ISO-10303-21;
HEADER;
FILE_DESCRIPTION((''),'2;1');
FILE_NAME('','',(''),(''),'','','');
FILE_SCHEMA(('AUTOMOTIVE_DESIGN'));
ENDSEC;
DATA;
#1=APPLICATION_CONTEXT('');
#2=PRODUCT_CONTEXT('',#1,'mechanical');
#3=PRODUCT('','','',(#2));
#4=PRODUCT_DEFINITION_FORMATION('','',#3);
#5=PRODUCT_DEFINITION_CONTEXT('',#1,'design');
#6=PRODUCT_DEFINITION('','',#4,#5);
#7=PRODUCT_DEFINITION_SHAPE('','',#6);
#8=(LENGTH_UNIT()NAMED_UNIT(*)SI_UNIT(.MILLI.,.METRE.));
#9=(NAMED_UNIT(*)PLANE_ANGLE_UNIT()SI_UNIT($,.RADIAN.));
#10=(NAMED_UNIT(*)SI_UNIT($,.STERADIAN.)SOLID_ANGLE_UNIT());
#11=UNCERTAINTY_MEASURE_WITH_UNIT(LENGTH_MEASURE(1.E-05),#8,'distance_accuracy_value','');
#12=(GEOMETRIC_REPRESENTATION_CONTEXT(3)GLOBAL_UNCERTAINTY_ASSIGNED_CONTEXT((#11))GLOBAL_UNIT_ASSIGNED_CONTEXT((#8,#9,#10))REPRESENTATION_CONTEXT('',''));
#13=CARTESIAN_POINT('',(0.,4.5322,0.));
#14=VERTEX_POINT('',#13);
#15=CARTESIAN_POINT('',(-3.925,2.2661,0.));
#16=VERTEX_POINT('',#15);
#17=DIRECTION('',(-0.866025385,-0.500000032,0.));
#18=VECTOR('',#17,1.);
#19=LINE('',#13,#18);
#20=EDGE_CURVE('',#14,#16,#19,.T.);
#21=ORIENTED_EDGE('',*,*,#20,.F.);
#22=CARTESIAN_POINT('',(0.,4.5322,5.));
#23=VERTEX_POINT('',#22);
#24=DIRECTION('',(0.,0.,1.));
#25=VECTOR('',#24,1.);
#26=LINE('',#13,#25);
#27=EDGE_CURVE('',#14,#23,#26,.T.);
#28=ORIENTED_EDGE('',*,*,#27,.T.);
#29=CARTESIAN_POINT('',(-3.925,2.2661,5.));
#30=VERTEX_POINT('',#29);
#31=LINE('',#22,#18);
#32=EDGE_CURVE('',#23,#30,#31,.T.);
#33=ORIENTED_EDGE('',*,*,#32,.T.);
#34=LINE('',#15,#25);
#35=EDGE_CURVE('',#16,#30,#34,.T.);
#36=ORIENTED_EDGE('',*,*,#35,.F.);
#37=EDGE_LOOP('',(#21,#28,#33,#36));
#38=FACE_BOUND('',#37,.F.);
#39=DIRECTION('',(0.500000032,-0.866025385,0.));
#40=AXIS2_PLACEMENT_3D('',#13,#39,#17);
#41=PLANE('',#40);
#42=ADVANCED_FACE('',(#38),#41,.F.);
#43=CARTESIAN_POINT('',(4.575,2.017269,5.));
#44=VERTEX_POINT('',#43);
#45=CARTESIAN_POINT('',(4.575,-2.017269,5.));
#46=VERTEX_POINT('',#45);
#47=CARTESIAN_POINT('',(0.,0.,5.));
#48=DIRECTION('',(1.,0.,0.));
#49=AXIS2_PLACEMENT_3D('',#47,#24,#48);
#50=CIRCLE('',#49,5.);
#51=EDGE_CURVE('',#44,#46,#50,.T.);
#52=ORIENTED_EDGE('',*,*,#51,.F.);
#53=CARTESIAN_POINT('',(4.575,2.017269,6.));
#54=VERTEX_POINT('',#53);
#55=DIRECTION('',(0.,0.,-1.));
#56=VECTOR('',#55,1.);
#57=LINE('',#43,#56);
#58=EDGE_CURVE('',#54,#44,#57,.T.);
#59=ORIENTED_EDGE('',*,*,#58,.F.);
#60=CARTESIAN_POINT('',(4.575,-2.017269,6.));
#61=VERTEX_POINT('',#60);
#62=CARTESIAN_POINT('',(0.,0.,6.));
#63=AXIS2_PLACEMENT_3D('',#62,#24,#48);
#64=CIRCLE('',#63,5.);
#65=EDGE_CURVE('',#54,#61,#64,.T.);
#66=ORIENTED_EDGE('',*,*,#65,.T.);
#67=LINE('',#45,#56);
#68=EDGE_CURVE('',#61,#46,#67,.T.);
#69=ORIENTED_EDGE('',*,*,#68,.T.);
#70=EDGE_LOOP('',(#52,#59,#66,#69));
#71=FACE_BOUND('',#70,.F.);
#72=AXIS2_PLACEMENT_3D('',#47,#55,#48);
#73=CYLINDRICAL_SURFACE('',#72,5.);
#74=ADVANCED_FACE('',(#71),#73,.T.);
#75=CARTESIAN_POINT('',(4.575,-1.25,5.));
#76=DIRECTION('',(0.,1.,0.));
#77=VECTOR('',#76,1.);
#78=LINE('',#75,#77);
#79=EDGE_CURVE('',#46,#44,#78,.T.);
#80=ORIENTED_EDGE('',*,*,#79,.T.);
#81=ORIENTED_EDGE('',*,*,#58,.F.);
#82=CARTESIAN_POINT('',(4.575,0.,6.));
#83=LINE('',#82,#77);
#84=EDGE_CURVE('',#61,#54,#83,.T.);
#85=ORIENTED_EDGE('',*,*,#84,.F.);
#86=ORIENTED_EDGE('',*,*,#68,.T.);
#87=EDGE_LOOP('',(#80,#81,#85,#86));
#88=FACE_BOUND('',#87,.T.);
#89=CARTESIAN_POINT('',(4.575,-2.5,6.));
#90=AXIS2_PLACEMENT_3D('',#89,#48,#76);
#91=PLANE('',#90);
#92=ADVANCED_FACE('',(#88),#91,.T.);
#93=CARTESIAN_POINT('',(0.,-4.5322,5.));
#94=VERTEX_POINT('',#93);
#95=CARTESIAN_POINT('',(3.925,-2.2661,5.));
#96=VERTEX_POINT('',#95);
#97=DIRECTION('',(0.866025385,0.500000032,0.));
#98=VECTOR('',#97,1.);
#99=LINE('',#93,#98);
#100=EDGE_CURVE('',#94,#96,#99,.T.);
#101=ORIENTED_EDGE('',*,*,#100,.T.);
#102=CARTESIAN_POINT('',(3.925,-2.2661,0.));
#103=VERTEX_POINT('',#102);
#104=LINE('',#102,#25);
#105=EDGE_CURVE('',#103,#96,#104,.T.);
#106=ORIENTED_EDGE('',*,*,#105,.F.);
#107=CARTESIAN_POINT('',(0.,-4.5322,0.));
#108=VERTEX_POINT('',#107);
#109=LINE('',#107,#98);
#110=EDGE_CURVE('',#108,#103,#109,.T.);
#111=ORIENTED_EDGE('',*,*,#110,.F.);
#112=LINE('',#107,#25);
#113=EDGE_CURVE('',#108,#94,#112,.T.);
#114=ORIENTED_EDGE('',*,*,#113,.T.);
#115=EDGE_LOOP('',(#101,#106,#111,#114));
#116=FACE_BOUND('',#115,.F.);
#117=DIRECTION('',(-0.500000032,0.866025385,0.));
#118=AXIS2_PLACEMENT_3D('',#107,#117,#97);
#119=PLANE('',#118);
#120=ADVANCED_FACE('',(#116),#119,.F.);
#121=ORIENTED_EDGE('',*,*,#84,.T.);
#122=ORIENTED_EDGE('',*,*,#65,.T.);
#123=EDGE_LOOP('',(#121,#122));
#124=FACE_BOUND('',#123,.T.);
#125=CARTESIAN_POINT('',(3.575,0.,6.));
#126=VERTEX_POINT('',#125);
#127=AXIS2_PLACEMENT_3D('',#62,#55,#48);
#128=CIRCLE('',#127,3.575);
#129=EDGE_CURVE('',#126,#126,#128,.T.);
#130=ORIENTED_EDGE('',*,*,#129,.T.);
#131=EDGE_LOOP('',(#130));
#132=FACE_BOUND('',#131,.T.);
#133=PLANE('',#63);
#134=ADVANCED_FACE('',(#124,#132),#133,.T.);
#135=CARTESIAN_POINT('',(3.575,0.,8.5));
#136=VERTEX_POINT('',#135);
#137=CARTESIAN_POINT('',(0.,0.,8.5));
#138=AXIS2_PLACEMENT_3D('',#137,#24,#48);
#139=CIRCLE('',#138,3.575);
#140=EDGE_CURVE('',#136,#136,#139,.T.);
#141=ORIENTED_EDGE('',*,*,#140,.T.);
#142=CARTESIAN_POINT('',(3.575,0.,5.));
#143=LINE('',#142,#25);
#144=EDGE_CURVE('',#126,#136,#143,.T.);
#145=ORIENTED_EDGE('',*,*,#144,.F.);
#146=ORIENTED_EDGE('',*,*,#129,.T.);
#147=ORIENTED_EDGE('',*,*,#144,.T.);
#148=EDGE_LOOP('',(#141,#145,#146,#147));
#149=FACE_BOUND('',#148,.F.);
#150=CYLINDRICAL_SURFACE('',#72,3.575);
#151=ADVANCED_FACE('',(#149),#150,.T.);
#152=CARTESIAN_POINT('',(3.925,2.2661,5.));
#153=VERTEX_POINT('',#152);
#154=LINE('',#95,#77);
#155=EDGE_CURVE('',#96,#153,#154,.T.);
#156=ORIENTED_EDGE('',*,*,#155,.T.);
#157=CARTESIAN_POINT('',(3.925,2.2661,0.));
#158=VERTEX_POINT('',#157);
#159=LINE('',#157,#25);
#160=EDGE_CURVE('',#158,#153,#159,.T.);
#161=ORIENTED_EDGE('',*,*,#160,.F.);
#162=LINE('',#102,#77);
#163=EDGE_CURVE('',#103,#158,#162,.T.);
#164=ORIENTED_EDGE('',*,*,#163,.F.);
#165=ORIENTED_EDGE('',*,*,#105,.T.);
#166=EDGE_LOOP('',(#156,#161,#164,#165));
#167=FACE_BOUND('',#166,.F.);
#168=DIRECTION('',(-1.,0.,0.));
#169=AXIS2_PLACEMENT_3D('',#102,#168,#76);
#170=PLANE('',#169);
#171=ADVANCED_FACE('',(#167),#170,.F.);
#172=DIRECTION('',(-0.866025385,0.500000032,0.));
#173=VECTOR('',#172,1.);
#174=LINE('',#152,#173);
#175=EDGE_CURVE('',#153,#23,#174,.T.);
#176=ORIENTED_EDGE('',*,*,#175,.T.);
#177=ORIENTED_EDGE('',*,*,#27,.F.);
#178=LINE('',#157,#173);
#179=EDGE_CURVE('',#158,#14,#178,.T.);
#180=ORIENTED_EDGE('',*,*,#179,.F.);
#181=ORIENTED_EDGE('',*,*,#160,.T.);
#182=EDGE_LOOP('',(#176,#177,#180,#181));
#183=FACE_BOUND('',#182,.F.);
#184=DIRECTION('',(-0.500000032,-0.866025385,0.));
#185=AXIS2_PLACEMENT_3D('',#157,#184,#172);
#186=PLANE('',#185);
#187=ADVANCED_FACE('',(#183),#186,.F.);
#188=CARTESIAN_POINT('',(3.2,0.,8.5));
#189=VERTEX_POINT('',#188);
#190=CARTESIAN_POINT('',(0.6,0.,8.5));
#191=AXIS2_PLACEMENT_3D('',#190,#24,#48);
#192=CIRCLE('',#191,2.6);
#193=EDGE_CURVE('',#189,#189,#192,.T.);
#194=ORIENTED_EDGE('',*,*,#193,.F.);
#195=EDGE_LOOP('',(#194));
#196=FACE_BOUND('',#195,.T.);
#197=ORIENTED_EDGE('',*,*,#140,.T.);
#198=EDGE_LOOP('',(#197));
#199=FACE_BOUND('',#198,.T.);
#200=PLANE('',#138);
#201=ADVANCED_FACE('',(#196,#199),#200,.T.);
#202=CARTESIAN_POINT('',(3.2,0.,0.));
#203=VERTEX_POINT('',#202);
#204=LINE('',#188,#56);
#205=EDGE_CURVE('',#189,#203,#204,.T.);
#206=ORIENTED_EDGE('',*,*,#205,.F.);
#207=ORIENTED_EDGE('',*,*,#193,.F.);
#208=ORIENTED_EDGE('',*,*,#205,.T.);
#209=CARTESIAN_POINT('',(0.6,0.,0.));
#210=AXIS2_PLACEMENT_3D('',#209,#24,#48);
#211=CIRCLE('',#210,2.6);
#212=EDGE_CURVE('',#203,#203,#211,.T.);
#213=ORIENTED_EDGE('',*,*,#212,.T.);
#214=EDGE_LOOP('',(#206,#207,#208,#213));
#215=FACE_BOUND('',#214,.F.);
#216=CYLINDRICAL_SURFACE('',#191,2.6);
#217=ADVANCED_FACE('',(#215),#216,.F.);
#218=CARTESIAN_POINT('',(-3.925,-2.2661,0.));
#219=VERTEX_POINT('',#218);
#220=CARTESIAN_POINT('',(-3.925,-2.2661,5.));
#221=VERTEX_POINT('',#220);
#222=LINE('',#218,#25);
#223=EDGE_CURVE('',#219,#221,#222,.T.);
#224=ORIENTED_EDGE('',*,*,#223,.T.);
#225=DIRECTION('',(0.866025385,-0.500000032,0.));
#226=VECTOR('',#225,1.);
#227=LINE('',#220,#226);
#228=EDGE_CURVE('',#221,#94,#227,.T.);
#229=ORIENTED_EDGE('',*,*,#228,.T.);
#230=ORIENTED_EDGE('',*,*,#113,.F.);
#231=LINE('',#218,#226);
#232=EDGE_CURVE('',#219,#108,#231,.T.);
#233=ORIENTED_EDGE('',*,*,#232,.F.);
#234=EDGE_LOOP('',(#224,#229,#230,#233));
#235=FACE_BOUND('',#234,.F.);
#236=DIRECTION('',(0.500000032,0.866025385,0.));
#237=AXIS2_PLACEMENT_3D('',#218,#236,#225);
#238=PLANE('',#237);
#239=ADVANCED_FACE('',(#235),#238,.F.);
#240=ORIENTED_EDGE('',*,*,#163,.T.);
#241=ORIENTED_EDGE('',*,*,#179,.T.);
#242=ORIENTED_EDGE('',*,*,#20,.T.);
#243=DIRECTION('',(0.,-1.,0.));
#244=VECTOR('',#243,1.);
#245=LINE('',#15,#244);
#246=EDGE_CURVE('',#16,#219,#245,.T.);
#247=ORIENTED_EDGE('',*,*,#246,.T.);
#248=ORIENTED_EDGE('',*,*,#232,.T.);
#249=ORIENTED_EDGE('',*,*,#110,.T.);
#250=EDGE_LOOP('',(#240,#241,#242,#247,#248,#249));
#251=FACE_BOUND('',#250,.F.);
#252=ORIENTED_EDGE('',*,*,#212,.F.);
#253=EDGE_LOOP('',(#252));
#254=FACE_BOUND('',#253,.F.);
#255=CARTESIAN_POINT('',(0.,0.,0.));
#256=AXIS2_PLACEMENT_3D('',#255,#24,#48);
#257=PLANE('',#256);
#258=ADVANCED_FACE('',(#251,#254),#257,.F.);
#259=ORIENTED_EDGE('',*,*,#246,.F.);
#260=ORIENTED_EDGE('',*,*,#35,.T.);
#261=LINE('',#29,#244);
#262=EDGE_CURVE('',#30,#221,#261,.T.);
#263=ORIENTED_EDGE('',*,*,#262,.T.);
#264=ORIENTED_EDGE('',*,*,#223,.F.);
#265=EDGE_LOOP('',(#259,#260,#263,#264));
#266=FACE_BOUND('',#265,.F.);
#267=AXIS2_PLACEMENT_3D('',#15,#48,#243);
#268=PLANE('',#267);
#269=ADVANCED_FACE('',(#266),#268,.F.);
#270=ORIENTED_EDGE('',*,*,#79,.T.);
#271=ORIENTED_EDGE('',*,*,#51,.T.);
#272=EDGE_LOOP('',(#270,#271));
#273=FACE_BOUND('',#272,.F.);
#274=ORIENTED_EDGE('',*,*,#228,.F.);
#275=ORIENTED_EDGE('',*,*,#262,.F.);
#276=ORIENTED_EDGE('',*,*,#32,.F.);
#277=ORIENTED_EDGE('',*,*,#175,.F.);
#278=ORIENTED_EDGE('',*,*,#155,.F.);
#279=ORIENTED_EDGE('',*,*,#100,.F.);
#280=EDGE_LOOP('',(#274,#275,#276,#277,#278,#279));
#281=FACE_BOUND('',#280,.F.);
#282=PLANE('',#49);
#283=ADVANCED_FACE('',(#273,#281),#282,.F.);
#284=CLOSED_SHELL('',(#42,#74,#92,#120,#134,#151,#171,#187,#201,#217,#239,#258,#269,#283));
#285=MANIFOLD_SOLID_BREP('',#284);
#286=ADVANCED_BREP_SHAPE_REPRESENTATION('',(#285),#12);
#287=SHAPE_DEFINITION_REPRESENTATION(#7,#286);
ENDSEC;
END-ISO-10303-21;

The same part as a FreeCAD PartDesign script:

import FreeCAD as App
import Part
import Sketcher
from FreeCAD import Vector
Q = App.Units.Quantity


def add_polygon(sketch, points):
    """Adds a closed chain of lines whose ends are joined by coincident constraints."""
    first, n = sketch.GeometryCount, len(points)
    for a, b in zip(points, points[1:] + points[:1]):
        sketch.addGeometry(Part.LineSegment(App.Vector(*a, 0), App.Vector(*b, 0)), False)
    for i in range(n):
        sketch.addConstraint(Sketcher.Constraint("Coincident", first + i, 2, first + (i + 1) % n, 1))

doc = App.newDocument("Part")
body = doc.addObject("PartDesign::Body", "Body")

sketch1 = body.newObject("Sketcher::SketchObject", "Sketch")
sketch1.AttachmentSupport = (doc.getObject("XY_Plane"), [""])
sketch1.MapMode = "FlatFace"
add_polygon(sketch1, [(3.9, -2.3), (3.9, 2.3), (0, 4.5), (-3.9, 2.3), (-3.9, -2.3), (0, -4.5)])
sketch1.addConstraint([
    Sketcher.Constraint("Vertical", 0),
    Sketcher.Constraint("Vertical", 3),
    Sketcher.Constraint("Symmetric", 0, 2, 3, 2, -1, 1),
    Sketcher.Constraint("Symmetric", 1, 2, 4, 2, -1, 1),
    Sketcher.Constraint("PointOnObject", 1, 2, -2),
    Sketcher.Constraint("Parallel", 2, 5),
    Sketcher.Constraint("Horizontal", 0, 2, 2, 2),
    Sketcher.Constraint("Angle", 1, Q("149.999998 deg")),
    Sketcher.Constraint("DistanceX", 2, 2, 0, 2, 7.85),
    Sketcher.Constraint("DistanceY", 0, 1, 0, 2, 4.5322),
])
pad1 = body.newObject("PartDesign::Pad", "Pad")
pad1.Profile = sketch1
pad1.Length = 5

sketch2 = body.newObject("Sketcher::SketchObject", "Sketch001")
sketch2.AttachmentSupport = (doc.getObject("XY_Plane"), [""])
sketch2.MapMode = "FlatFace"
sketch2.AttachmentOffset = App.Placement(Vector(0, 0, 5), App.Rotation())
sketch2.addGeometry(Part.Circle(Vector(0, 0, 0), Vector(0, 0, 1), 3.6), False)
sketch2.addConstraint([
    Sketcher.Constraint("Coincident", 0, 3, -1, 1),
    Sketcher.Constraint("Diameter", 0, 7.15),
])
pad2 = body.newObject("PartDesign::Pad", "Pad001")
pad2.Profile = sketch2
pad2.Length = 3.5

sketch3 = body.newObject("Sketcher::SketchObject", "Sketch002")
sketch3.AttachmentSupport = (doc.getObject("XY_Plane"), [""])
sketch3.MapMode = "FlatFace"
sketch3.AttachmentOffset = App.Placement(Vector(0, 0, 8.5), App.Rotation())
sketch3.addGeometry(Part.Circle(Vector(0.6, 0, 0), Vector(0, 0, 1), 2.6), False)
sketch3.addConstraint([
    Sketcher.Constraint("PointOnObject", 0, 3, -1),
    Sketcher.Constraint("Diameter", 0, 5.2),
    Sketcher.Constraint("DistanceX", -1, 1, 0, 3, 0.6),
])
pocket1 = body.newObject("PartDesign::Pocket", "Pocket")
pocket1.Profile = sketch3
pocket1.Length = 25

sketch4 = body.newObject("Sketcher::SketchObject", "Sketch003")
sketch4.AttachmentSupport = (doc.getObject("XY_Plane"), [""])
sketch4.MapMode = "FlatFace"
sketch4.AttachmentOffset = App.Placement(Vector(0, 0, 5), App.Rotation())
sketch4.addGeometry(Part.Circle(Vector(0, 0, 0), Vector(0, 0, 1), 5), False)
sketch4.addConstraint([
    Sketcher.Constraint("Coincident", 0, 3, -1, 1),
    Sketcher.Constraint("Diameter", 0, 10.0),
])
pad3 = body.newObject("PartDesign::Pad", "Pad002")
pad3.Profile = sketch4
pad3.Length = 1

sketch5 = body.newObject("Sketcher::SketchObject", "Sketch004")
sketch5.AttachmentSupport = (doc.getObject("XY_Plane"), [""])
sketch5.MapMode = "FlatFace"
sketch5.AttachmentOffset = App.Placement(Vector(0, 0, 8.5), App.Rotation())
sketch5.addGeometry(Part.Circle(Vector(0.6, 0, 0), Vector(0, 0, 1), 2.6), False)
sketch5.addConstraint([
    Sketcher.Constraint("PointOnObject", 0, 3, -1),
    Sketcher.Constraint("Diameter", 0, 5.2),
    Sketcher.Constraint("DistanceX", -1, 1, 0, 3, 0.6),
])
pocket2 = body.newObject("PartDesign::Pocket", "Pocket001")
pocket2.Profile = sketch5
pocket2.Length = 25

sketch6 = body.newObject("Sketcher::SketchObject", "Sketch005")
sketch6.AttachmentSupport = (doc.getObject("XY_Plane"), [""])
sketch6.MapMode = "FlatFace"
sketch6.AttachmentOffset = App.Placement(Vector(0, 0, 6), App.Rotation())
add_polygon(sketch6, [(4.6, 2.5), (4.6, -2.5), (6.1, -2.5), (6.1, 2.5)])
sketch6.addConstraint([
    Sketcher.Constraint("Vertical", 0),
    Sketcher.Constraint("Horizontal", 1),
    Sketcher.Constraint("Vertical", 2),
    Sketcher.Constraint("Horizontal", 3),
    Sketcher.Constraint("DistanceY", 0, 2, 0, 1, 5.0),
    Sketcher.Constraint("DistanceX", 1, 1, 1, 2, 1.5),
    Sketcher.Constraint("DistanceY", 0, 2, -1, 1, 2.5),
    Sketcher.Constraint("DistanceX", -1, 1, 0, 2, 4.575),
])
pocket3 = body.newObject("PartDesign::Pocket", "Pocket002")
pocket3.Profile = sketch6
pocket3.Length = 2

doc.recompute()
